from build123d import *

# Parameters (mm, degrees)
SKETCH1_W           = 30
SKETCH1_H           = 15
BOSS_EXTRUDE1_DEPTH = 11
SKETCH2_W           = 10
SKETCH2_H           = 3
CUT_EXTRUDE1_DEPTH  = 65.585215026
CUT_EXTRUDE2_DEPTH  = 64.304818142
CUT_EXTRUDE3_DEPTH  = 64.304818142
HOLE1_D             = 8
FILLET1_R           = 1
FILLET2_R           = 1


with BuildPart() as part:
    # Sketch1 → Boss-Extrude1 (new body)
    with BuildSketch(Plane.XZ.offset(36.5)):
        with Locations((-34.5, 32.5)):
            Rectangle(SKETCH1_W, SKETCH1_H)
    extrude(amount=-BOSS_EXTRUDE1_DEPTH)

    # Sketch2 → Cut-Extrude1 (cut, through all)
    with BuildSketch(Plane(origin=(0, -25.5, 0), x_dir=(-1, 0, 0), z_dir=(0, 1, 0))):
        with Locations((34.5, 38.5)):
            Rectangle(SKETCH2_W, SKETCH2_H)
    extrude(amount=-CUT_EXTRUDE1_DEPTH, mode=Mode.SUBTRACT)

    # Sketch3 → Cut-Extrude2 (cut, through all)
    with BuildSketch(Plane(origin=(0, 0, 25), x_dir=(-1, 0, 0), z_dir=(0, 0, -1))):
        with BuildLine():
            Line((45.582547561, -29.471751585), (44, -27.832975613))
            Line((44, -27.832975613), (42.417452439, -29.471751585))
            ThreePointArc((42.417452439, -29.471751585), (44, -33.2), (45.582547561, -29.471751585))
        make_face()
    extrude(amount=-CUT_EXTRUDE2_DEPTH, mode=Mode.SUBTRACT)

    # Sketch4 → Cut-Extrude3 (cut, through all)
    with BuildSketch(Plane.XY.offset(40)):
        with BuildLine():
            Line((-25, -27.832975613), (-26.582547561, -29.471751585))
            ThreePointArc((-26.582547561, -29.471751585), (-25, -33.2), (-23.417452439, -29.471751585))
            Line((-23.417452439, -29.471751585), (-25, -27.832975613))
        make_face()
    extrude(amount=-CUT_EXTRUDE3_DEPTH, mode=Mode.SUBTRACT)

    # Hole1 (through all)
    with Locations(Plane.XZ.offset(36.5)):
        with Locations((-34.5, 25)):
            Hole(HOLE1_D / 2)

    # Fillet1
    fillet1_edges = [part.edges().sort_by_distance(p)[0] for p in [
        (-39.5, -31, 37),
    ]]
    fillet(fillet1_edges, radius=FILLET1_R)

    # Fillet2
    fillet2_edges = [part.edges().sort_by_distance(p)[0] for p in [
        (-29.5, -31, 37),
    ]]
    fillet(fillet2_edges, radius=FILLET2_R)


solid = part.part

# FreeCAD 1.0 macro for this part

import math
import FreeCAD as App
import Part
import Sketcher
Q = App.Units.Quantity


def edges_at(feature, points):
    """Names of the edges that pass closest to the given points."""
    edges = feature.Shape.Edges
    near = lambda p: min(range(len(edges)), key=lambda i: edges[i].distToShape(Part.Vertex(*p))[0])
    return sorted({f"Edge{near(p) + 1}" for p in points})


def add_polygon(sketch, points):
    """Adds a closed chain of lines whose ends are joined by coincident constraints."""
    first, n = sketch.GeometryCount, len(points)
    for a, b in zip(points, points[1:] + points[:1]):
        sketch.addGeometry(Part.LineSegment(App.Vector(*a, 0), App.Vector(*b, 0)), False)
    for i in range(n):
        sketch.addConstraint(Sketcher.Constraint("Coincident", first + i, 2, first + (i + 1) % n, 1))

doc = App.newDocument("Part")
body = doc.addObject("PartDesign::Body", "Body")

sketch1 = body.newObject("Sketcher::SketchObject", "Sketch")
sketch1.AttachmentSupport = (doc.getObject("XZ_Plane"), [""])
sketch1.MapMode = "FlatFace"
sketch1.AttachmentOffset = App.Placement(App.Vector(0, 0, 36.5), App.Rotation())
add_polygon(sketch1, [(-49.5, 40), (-49.5, 25), (-19.5, 25), (-19.5, 40)])
sketch1.addConstraint([
    Sketcher.Constraint("Vertical", 0),
    Sketcher.Constraint("Horizontal", 1),
    Sketcher.Constraint("Vertical", 2),
    Sketcher.Constraint("Horizontal", 3),
    Sketcher.Constraint("DistanceX", 1, 1, 1, 2, 30.0),
    Sketcher.Constraint("DistanceY", 0, 2, 0, 1, 15.0),
    Sketcher.Constraint("DistanceY", -1, 1, 0, 2, 25.0),
    Sketcher.Constraint("DistanceX", 0, 2, -1, 1, 49.5),
])
pad1 = body.newObject("PartDesign::Pad", "Pad")
pad1.Profile = sketch1
pad1.Length = 11
pad1.Reversed = True

sketch2 = body.newObject("Sketcher::SketchObject", "Sketch001")
sketch2.AttachmentSupport = (doc.getObject("XZ_Plane"), [""])
sketch2.MapMode = "FlatFace"
sketch2.AttachmentOffset = App.Placement(App.Vector(0, 0, 25.5), App.Rotation())
add_polygon(sketch2, [(-29.5, 40), (-29.5, 37), (-39.5, 37), (-39.5, 40)])
sketch2.addConstraint([
    Sketcher.Constraint("Vertical", 0),
    Sketcher.Constraint("Horizontal", 1),
    Sketcher.Constraint("Vertical", 2),
    Sketcher.Constraint("Horizontal", 3),
    Sketcher.Constraint("DistanceX", 1, 2, 1, 1, 10.0),
    Sketcher.Constraint("DistanceY", 0, 2, 0, 1, 3.0),
    Sketcher.Constraint("DistanceY", -1, 1, 0, 2, 37.0),
    Sketcher.Constraint("DistanceX", 0, 2, -1, 1, 29.5),
])
pocket1 = body.newObject("PartDesign::Pocket", "Pocket")
pocket1.Profile = sketch2
pocket1.Type = "ThroughAll"
pocket1.Reversed = True

sketch3 = body.newObject("Sketcher::SketchObject", "Sketch002")
sketch3.AttachmentSupport = (doc.getObject("XY_Plane"), [""])
sketch3.MapMode = "FlatFace"
sketch3.AttachmentOffset = App.Placement(App.Vector(0, 0, 25), App.Rotation())
sketch3.addGeometry([
    Part.LineSegment(App.Vector(-45.582548, -29.471752, 0), App.Vector(-44, -27.832976, 0)),
    Part.LineSegment(App.Vector(-44, -27.832976, 0), App.Vector(-42.417452, -29.471752, 0)),
    Part.ArcOfCircle(Part.Circle(App.Vector(-44, -31, 0), App.Vector(0, 0, 1), 2.2), math.radians(136), math.radians(404)),
], False)
sketch3.addConstraint([
    Sketcher.Constraint("Coincident", 0, 2, 1, 1),
    Sketcher.Constraint("Tangent", 1, 2, 2, 2),
    Sketcher.Constraint("Tangent", 2, 1, 0, 1),
    Sketcher.Constraint("Horizontal", 1, 2, 2, 1),
    Sketcher.Constraint("Radius", 2, 2.2),
    Sketcher.Constraint("Angle", 0, Q("46 deg")),
    Sketcher.Constraint("DistanceX", 2, 3, -1, 1, 44.0),
    Sketcher.Constraint("DistanceY", 2, 3, -1, 1, 31.0),
])
pocket2 = body.newObject("PartDesign::Pocket", "Pocket001")
pocket2.Profile = sketch3
pocket2.Type = "ThroughAll"
pocket2.Reversed = True

sketch4 = body.newObject("Sketcher::SketchObject", "Sketch003")
sketch4.AttachmentSupport = (doc.getObject("XY_Plane"), [""])
sketch4.MapMode = "FlatFace"
sketch4.AttachmentOffset = App.Placement(App.Vector(0, 0, 40), App.Rotation())
sketch4.addGeometry([
    Part.LineSegment(App.Vector(-25, -27.832976, 0), App.Vector(-26.582548, -29.471752, 0)),
    Part.ArcOfCircle(Part.Circle(App.Vector(-25, -31, 0), App.Vector(0, 0, 1), 2.2), math.radians(136), math.radians(404)),
    Part.LineSegment(App.Vector(-23.417452, -29.471752, 0), App.Vector(-25, -27.832976, 0)),
], False)
sketch4.addConstraint([
    Sketcher.Constraint("Tangent", 0, 2, 1, 1),
    Sketcher.Constraint("Tangent", 1, 2, 2, 1),
    Sketcher.Constraint("Coincident", 2, 2, 0, 1),
    Sketcher.Constraint("Horizontal", 0, 2, 1, 2),
    Sketcher.Constraint("Radius", 1, 2.2),
    Sketcher.Constraint("Angle", 0, Q("-134 deg")),
    Sketcher.Constraint("DistanceX", 1, 3, -1, 1, 25.0),
    Sketcher.Constraint("DistanceY", 1, 3, -1, 1, 31.0),
])
pocket3 = body.newObject("PartDesign::Pocket", "Pocket002")
pocket3.Profile = sketch4
pocket3.Type = "ThroughAll"

sketch5 = body.newObject("Sketcher::SketchObject", "Sketch004")
sketch5.AttachmentSupport = (doc.getObject("XZ_Plane"), [""])
sketch5.MapMode = "FlatFace"
sketch5.AttachmentOffset = App.Placement(App.Vector(0, 0, 36.5), App.Rotation())
sketch5.addGeometry(Part.Circle(App.Vector(-34.5, 25, 0), App.Vector(0, 0, 1), 4), False)
sketch5.addConstraint([
    Sketcher.Constraint("Diameter", 0, 8.0),
    Sketcher.Constraint("DistanceY", -1, 1, 0, 3, 25.0),
    Sketcher.Constraint("DistanceX", 0, 3, -1, 1, 34.5),
])
doc.recompute()
hole = body.newObject("PartDesign::Hole", "Hole")
hole.Profile = sketch5
hole.ThreadType = "None"
hole.Diameter = 8
hole.DepthType = "ThroughAll"
doc.recompute()

fillet = body.newObject("PartDesign::Fillet", "Fillet")
fillet.Base = (hole, edges_at(hole, [(-39.5, -31, 37)]))
fillet.Radius = 1
doc.recompute()

fillet2 = body.newObject("PartDesign::Fillet", "Fillet001")
fillet2.Base = (fillet, edges_at(fillet, [(-29.5, -31, 37)]))
fillet2.Radius = 1

doc.recompute()
